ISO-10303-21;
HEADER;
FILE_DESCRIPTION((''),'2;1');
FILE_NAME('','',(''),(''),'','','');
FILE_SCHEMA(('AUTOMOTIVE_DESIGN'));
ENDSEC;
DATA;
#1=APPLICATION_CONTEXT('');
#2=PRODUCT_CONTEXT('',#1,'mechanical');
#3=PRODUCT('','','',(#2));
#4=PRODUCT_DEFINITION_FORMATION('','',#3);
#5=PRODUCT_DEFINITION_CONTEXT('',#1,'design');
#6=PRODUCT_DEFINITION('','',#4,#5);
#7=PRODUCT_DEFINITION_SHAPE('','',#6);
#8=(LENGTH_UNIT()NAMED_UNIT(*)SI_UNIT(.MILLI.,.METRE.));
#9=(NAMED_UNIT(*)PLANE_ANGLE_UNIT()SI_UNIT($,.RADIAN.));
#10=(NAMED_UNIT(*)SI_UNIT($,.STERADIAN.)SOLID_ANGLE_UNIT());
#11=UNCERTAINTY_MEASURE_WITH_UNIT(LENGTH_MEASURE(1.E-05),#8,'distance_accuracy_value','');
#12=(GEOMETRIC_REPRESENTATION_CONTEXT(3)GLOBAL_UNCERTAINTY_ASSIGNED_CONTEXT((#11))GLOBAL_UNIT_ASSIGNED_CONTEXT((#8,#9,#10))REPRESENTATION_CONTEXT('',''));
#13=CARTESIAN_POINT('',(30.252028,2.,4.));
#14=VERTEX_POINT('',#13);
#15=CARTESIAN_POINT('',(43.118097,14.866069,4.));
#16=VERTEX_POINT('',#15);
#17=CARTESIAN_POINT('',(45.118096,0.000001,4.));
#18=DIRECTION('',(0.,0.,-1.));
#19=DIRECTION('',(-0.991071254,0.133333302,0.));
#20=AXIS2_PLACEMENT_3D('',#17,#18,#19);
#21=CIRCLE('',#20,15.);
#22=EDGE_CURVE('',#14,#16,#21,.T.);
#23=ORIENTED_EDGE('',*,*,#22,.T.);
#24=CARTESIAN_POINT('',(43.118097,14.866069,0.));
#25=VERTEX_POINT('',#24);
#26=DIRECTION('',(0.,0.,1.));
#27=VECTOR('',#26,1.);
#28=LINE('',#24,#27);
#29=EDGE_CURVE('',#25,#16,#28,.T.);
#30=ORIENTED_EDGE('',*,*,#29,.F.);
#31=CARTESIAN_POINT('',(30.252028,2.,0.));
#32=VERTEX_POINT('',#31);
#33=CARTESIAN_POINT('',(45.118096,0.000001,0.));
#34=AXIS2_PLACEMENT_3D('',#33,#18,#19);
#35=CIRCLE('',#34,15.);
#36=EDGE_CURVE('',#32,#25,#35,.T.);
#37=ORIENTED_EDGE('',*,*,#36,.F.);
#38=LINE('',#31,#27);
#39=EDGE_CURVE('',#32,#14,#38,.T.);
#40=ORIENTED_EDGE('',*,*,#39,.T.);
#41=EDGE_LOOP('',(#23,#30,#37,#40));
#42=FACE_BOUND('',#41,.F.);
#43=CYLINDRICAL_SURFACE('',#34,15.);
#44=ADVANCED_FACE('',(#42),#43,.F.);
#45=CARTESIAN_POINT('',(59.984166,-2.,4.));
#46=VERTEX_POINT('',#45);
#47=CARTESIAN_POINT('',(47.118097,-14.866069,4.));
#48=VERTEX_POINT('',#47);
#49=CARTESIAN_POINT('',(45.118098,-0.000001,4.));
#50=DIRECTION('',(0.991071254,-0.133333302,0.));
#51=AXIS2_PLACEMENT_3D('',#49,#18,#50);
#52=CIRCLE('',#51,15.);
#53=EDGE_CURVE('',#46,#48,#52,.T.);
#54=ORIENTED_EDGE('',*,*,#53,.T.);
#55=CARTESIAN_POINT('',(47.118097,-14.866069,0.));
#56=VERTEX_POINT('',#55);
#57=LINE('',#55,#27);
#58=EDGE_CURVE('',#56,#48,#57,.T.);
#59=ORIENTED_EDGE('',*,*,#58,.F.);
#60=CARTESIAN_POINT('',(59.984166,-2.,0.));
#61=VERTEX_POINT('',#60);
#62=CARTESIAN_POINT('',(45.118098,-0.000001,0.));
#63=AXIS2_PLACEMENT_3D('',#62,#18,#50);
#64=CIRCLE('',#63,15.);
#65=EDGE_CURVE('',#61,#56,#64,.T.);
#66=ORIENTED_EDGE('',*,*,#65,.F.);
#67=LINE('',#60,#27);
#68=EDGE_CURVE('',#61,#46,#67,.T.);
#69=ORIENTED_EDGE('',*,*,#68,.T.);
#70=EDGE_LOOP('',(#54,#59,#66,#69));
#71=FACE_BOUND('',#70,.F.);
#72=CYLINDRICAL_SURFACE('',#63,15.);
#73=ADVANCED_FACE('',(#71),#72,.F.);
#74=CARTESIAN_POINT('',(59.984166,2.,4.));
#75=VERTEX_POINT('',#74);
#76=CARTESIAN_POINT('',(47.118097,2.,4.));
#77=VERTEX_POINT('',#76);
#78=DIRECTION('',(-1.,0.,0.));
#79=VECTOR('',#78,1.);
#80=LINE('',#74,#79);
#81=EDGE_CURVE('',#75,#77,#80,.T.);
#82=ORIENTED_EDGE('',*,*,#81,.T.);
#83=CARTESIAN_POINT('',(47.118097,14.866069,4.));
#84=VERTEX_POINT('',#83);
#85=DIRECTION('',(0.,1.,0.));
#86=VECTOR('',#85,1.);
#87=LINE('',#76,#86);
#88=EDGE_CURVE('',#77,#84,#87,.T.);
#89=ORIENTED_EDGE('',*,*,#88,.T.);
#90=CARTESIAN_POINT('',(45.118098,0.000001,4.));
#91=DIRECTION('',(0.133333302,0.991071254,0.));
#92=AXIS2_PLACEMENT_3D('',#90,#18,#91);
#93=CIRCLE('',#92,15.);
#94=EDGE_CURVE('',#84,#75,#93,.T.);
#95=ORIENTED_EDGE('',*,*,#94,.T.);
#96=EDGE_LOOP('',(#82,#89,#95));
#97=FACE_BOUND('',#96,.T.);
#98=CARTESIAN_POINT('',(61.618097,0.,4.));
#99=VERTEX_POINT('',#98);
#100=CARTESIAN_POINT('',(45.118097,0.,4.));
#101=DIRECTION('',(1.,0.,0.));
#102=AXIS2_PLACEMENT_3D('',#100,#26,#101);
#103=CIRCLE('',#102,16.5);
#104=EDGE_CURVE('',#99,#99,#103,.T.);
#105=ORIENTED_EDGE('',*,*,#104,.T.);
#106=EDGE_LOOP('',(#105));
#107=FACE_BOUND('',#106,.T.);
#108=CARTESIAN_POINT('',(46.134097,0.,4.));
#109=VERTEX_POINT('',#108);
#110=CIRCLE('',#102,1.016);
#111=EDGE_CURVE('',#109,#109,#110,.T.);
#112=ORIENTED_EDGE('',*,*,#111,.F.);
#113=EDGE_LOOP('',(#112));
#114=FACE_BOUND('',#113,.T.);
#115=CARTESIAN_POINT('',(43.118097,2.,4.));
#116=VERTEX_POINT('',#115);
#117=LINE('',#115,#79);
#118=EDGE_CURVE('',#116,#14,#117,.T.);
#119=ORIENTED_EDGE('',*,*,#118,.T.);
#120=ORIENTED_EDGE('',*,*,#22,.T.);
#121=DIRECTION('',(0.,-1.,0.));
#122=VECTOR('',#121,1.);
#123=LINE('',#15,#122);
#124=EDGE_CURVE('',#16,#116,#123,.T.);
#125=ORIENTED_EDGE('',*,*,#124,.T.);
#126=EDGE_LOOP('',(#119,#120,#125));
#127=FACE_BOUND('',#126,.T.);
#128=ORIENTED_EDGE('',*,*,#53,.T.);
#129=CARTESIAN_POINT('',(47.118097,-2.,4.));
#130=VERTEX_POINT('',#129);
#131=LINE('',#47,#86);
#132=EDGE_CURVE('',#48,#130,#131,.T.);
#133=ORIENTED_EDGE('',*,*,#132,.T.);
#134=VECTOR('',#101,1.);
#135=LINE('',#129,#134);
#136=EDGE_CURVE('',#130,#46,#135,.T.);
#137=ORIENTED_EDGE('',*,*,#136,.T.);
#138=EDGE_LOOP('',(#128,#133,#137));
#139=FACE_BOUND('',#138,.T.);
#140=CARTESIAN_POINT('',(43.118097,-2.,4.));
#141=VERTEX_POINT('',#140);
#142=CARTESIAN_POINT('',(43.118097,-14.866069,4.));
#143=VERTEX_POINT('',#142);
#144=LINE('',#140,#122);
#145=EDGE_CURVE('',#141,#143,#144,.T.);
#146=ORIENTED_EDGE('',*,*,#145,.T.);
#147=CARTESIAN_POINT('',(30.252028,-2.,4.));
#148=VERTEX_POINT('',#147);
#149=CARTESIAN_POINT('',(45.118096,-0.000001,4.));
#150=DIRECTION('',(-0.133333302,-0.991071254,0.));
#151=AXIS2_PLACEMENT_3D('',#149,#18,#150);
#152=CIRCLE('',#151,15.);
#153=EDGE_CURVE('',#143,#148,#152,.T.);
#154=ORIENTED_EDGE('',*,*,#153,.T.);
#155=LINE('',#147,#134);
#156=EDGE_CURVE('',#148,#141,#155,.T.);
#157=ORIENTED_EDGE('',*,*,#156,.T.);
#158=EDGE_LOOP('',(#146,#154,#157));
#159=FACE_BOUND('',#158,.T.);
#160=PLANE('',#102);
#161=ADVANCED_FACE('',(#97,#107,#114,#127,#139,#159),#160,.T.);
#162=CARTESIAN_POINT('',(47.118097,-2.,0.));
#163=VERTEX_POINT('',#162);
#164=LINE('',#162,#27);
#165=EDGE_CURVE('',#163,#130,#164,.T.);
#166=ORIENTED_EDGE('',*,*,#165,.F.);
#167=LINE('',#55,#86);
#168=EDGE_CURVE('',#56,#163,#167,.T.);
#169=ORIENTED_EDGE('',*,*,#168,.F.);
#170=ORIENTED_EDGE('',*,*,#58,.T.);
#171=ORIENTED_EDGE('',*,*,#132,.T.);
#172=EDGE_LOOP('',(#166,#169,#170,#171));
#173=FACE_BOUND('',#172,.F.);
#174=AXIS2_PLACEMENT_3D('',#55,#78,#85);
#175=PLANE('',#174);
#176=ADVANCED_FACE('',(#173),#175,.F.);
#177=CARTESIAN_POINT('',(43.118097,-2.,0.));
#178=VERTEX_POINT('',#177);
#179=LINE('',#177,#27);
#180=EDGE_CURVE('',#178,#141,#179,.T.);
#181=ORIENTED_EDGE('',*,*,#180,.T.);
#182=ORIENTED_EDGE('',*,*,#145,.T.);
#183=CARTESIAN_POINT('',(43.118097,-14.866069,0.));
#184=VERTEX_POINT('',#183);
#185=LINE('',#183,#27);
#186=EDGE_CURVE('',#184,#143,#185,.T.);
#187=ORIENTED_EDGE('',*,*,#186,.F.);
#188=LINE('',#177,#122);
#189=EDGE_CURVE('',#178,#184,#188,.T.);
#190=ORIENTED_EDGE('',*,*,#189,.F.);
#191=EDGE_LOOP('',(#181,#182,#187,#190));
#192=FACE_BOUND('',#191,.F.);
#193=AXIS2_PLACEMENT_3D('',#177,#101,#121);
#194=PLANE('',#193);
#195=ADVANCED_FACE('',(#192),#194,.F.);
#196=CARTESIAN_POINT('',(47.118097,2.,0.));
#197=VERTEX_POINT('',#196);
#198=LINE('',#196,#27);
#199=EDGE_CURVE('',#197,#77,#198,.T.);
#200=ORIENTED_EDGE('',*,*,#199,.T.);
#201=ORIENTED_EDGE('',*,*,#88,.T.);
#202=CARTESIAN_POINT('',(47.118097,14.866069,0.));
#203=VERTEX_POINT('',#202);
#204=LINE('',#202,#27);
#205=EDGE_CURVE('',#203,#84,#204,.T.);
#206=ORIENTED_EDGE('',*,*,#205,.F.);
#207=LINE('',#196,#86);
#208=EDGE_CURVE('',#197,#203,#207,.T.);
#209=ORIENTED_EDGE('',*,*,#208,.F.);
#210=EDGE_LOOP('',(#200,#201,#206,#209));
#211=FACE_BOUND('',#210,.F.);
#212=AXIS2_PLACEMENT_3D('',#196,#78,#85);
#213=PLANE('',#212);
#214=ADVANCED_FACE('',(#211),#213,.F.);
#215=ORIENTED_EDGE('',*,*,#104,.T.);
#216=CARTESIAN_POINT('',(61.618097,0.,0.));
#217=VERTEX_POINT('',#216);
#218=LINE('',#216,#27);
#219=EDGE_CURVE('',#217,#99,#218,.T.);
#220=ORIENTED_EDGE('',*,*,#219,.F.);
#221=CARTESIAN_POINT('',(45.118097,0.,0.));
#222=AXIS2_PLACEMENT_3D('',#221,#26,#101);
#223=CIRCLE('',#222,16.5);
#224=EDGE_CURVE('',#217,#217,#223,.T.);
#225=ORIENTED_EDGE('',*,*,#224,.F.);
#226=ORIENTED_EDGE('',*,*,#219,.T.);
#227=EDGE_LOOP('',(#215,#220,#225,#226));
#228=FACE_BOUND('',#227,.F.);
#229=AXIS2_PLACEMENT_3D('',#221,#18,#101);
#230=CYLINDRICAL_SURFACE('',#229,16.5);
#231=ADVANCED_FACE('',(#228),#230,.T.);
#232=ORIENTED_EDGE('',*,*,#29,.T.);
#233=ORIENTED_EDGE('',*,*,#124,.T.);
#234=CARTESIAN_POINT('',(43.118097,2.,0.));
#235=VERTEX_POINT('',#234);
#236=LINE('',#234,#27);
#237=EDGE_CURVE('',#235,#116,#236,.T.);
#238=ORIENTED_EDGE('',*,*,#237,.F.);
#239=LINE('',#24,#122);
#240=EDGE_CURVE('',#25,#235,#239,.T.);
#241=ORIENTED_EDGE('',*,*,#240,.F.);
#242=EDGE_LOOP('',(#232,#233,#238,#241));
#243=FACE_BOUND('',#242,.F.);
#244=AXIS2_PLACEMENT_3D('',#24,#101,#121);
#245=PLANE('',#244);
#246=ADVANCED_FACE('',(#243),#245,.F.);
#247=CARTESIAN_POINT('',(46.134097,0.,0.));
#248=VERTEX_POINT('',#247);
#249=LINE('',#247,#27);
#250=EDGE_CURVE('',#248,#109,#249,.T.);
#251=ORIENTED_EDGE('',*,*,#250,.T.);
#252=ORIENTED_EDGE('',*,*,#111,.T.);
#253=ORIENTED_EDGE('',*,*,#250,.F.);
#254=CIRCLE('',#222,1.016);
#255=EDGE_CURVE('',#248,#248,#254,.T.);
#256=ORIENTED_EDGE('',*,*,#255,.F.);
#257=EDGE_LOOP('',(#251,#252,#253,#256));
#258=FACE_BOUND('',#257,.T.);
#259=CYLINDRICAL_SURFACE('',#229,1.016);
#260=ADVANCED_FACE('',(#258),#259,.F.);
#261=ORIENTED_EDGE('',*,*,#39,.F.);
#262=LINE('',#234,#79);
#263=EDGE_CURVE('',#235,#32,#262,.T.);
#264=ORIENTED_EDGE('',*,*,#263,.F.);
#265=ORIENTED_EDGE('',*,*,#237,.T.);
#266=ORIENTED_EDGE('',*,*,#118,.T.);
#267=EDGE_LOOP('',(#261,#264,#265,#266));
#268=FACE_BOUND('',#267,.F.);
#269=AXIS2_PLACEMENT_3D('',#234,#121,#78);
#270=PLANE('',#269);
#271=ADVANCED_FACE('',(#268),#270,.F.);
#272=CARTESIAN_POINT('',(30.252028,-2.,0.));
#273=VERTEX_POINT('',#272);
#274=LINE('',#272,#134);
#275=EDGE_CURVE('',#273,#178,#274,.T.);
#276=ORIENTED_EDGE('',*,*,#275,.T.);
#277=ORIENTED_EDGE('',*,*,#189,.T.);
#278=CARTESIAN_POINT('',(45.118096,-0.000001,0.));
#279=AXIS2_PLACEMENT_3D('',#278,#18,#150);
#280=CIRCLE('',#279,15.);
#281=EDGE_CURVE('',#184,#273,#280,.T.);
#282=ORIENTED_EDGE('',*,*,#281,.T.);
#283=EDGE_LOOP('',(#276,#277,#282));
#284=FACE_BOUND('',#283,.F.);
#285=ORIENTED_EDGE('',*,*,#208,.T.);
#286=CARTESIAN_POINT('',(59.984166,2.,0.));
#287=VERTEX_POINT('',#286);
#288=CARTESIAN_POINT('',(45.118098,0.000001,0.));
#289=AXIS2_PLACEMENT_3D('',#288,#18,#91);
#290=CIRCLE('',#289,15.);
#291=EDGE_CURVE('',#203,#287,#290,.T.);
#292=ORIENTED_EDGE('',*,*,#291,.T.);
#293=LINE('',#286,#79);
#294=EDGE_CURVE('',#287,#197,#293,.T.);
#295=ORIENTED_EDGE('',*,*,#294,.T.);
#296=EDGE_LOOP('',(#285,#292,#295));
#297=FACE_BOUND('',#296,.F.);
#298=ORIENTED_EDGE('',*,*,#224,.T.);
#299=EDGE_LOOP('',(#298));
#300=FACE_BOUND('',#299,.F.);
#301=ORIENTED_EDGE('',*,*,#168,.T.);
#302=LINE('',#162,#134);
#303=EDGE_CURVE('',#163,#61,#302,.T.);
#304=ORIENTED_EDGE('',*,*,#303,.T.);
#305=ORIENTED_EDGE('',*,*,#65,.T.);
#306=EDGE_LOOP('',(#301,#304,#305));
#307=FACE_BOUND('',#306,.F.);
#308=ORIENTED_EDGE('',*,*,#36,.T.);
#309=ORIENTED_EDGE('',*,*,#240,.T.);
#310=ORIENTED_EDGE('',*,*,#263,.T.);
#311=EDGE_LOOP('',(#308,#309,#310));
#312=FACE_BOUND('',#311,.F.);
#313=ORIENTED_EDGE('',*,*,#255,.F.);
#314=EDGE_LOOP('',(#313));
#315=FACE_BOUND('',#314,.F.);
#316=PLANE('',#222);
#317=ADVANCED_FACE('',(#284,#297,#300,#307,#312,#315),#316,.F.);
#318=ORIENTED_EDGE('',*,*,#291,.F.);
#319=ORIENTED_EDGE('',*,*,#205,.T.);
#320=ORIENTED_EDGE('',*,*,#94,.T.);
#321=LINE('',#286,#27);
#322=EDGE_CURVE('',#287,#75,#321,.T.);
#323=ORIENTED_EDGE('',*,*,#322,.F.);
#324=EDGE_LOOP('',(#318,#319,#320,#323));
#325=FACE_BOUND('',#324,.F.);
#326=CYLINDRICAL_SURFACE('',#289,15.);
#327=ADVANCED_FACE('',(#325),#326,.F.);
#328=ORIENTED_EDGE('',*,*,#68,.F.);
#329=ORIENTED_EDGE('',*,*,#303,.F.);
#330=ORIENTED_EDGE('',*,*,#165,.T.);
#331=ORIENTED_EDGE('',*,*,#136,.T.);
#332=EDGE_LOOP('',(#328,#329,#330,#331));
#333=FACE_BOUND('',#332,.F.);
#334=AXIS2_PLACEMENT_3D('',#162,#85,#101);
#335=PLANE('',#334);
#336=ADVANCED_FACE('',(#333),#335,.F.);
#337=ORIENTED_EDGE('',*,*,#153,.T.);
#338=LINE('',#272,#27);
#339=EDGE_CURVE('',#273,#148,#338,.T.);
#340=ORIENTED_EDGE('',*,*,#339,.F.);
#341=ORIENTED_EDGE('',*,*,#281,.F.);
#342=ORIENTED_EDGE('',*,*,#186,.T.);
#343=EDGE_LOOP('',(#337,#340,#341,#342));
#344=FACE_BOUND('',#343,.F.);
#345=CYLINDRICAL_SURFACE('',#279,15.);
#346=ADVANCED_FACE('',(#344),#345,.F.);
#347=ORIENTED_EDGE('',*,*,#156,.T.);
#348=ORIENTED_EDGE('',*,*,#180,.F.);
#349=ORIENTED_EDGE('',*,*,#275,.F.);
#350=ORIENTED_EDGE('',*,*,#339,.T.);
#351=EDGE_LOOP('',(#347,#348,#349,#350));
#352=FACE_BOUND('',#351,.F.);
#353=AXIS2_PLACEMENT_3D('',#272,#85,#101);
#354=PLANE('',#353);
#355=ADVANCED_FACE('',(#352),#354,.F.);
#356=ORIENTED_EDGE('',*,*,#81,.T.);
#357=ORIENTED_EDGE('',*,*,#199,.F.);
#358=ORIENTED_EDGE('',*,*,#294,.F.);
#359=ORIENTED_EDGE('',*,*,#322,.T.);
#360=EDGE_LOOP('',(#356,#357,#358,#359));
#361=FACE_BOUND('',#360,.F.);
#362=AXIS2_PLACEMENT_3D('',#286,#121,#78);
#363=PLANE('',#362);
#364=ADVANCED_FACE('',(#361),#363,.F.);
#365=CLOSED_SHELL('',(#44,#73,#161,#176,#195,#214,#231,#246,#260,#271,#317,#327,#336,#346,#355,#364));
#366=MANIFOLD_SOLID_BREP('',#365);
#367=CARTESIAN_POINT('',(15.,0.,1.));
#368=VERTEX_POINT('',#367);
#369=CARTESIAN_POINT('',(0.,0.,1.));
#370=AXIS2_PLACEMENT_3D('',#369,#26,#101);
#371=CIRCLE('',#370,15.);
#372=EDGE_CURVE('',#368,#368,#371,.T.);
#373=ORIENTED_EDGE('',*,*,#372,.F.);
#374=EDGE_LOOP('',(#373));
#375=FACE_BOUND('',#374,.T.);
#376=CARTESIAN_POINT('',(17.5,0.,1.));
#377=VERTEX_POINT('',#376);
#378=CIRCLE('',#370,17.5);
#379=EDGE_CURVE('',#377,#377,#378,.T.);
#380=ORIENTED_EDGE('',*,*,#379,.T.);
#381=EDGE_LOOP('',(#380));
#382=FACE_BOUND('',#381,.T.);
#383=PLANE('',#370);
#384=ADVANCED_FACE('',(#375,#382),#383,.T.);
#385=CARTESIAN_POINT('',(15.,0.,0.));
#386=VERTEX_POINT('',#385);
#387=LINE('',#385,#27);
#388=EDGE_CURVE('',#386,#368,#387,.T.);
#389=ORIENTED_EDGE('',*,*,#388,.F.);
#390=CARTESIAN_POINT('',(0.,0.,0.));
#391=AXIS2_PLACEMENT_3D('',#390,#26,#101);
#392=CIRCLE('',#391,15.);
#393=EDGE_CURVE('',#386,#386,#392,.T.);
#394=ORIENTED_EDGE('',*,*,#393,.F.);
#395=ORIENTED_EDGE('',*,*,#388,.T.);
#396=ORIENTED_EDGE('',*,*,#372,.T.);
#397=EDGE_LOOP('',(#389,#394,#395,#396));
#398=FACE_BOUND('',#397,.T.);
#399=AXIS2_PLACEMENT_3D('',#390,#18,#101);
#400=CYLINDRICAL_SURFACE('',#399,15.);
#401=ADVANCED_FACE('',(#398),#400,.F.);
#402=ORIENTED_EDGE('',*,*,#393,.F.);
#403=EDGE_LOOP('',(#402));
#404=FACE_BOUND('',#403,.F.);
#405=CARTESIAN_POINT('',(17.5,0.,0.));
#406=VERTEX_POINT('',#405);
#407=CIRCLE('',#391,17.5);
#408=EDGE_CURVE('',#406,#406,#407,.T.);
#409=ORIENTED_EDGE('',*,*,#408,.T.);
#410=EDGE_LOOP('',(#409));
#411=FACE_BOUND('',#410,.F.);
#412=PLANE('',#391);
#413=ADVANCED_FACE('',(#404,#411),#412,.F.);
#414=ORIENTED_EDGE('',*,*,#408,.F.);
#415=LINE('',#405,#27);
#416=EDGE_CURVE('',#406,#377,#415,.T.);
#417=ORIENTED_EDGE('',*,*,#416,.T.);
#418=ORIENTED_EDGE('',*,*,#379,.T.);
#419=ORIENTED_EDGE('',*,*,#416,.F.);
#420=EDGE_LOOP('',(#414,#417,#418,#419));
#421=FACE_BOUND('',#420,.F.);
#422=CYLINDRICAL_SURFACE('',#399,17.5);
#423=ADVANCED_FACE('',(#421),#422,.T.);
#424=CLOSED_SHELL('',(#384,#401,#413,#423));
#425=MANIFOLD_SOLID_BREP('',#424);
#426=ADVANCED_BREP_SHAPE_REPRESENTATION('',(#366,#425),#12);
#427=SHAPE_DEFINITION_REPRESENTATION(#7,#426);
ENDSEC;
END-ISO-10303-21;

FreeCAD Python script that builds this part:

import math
import FreeCAD as App
import Part
import Sketcher

V = App.Vector
Q = App.Units.Quantity

doc = App.newDocument("Part")
body = doc.addObject("PartDesign::Body", "Body")

sketch1 = body.newObject("Sketcher::SketchObject", "Sketch")
sketch1.AttachmentSupport = (doc.getObject("XY_Plane"), [""])
sketch1.MapMode = "FlatFace"
sketch1.addGeometry(Part.Circle(V(0, 0, 0), V(0, 0, 1), 17.5), False)
sketch1.addGeometry(Part.Circle(V(0, 0, 0), V(0, 0, 1), 15), False)
sketch1.addConstraint(Sketcher.Constraint("Coincident", 0, 3, -1, 1))
sketch1.addConstraint(Sketcher.Constraint("Coincident", 1, 3, -1, 1))
sketch1.addConstraint(Sketcher.Constraint("Diameter", 0, Q("35 mm")))
sketch1.addConstraint(Sketcher.Constraint("Diameter", 1, Q("30 mm")))
pad1 = body.newObject("PartDesign::Pad", "Pad")
pad1.Profile = sketch1
pad1.Length = 1
body2 = doc.addObject("PartDesign::Body", "Body001")

sketch2 = body2.newObject("Sketcher::SketchObject", "Sketch001")
sketch2.AttachmentSupport = (doc.getObject("XY_Plane001"), [""])
sketch2.MapMode = "FlatFace"
sketch2.addGeometry(Part.Circle(V(45.118097, 0, 0), V(0, 0, 1), 16.5), False)
sketch2.addGeometry(Part.LineSegment(V(43.118097, -2, 0), V(43.118097, -14.866069, 0)), False)
sketch2.addGeometry(Part.ArcOfCircle(Part.Circle(V(45.118096, -0.000001, 0), V(0, 0, 1), 15), math.radians(-172.337746), math.radians(-97.662254)), False)
sketch2.addGeometry(Part.LineSegment(V(30.252028, -2, 0), V(43.118097, -2, 0)), False)
sketch2.addGeometry(Part.LineSegment(V(47.118097, -2, 0), V(59.984166, -2, 0)), False)
sketch2.addGeometry(Part.ArcOfCircle(Part.Circle(V(45.118098, -0.000001, 0), V(0, 0, 1), 15), math.radians(-82.337746), math.radians(-7.662254)), False)
sketch2.addGeometry(Part.LineSegment(V(47.118097, -14.866069, 0), V(47.118097, -2, 0)), False)
sketch2.addGeometry(Part.Circle(V(45.118097, 0, 0), V(0, 0, 1), 1.016), False)
sketch2.addGeometry(Part.LineSegment(V(43.118097, 2, 0), V(30.252028, 2, 0)), False)
sketch2.addGeometry(Part.ArcOfCircle(Part.Circle(V(45.118096, 0.000001, 0), V(0, 0, 1), 15), math.radians(97.662254), math.radians(172.337746)), False)
sketch2.addGeometry(Part.LineSegment(V(43.118097, 14.866069, 0), V(43.118097, 2, 0)), False)
sketch2.addGeometry(Part.LineSegment(V(59.984166, 2, 0), V(47.118097, 2, 0)), False)
sketch2.addGeometry(Part.LineSegment(V(47.118097, 2, 0), V(47.118097, 14.866069, 0)), False)
sketch2.addGeometry(Part.ArcOfCircle(Part.Circle(V(45.118098, 0.000001, 0), V(0, 0, 1), 15), math.radians(7.662254), math.radians(82.337746)), False)
sketch2.addConstraint(Sketcher.Constraint("Coincident", 1, 2, 2, 2))
sketch2.addConstraint(Sketcher.Constraint("Coincident", 2, 1, 3, 1))
sketch2.addConstraint(Sketcher.Constraint("Coincident", 3, 2, 1, 1))
sketch2.addConstraint(Sketcher.Constraint("Coincident", 4, 2, 5, 2))
sketch2.addConstraint(Sketcher.Constraint("Coincident", 5, 1, 6, 1))
sketch2.addConstraint(Sketcher.Constraint("Coincident", 6, 2, 4, 1))
sketch2.addConstraint(Sketcher.Constraint("Coincident", 8, 2, 9, 2))
sketch2.addConstraint(Sketcher.Constraint("Coincident", 9, 1, 10, 1))
sketch2.addConstraint(Sketcher.Constraint("Coincident", 10, 2, 8, 1))
sketch2.addConstraint(Sketcher.Constraint("Coincident", 11, 2, 12, 1))
sketch2.addConstraint(Sketcher.Constraint("Coincident", 12, 2, 13, 2))
sketch2.addConstraint(Sketcher.Constraint("Coincident", 13, 1, 11, 1))
sketch2.addConstraint(Sketcher.Constraint("Vertical", 1))
sketch2.addConstraint(Sketcher.Constraint("Horizontal", 3))
sketch2.addConstraint(Sketcher.Constraint("Horizontal", 4))
sketch2.addConstraint(Sketcher.Constraint("Vertical", 6))
sketch2.addConstraint(Sketcher.Constraint("Horizontal", 8))
sketch2.addConstraint(Sketcher.Constraint("Vertical", 10))
sketch2.addConstraint(Sketcher.Constraint("Horizontal", 11))
sketch2.addConstraint(Sketcher.Constraint("Vertical", 12))
sketch2.addConstraint(Sketcher.Constraint("Coincident", 2, 3, 0, 3))
sketch2.addConstraint(Sketcher.Constraint("Coincident", 5, 3, 0, 3))
sketch2.addConstraint(Sketcher.Constraint("Coincident", 7, 3, 0, 3))
sketch2.addConstraint(Sketcher.Constraint("Coincident", 9, 3, 0, 3))
sketch2.addConstraint(Sketcher.Constraint("Coincident", 13, 3, 0, 3))
sketch2.addConstraint(Sketcher.Constraint("Equal", 2, 5))
sketch2.addConstraint(Sketcher.Constraint("Equal", 5, 9))
sketch2.addConstraint(Sketcher.Constraint("Equal", 9, 13))
sketch2.addConstraint(Sketcher.Constraint("Symmetric", 2, 1, 8, 2, -1))
sketch2.addConstraint(Sketcher.Constraint("Symmetric", 6, 2, 11, 2, -1))
sketch2.addConstraint(Sketcher.Constraint("Horizontal", 3, 2, 4, 2))
sketch2.addConstraint(Sketcher.Constraint("Horizontal", 1, 2, 5, 1))
sketch2.addConstraint(Sketcher.Constraint("Horizontal", 9, 1, 12, 2))
sketch2.addConstraint(Sketcher.Constraint("Equal", 11, 1))
sketch2.addConstraint(Sketcher.Constraint("Diameter", 0, Q("33 mm")))
sketch2.addConstraint(Sketcher.Constraint("Radius", 2, Q("15 mm")))
sketch2.addConstraint(Sketcher.Constraint("Diameter", 7, Q("2.032 mm")))
sketch2.addConstraint(Sketcher.Constraint("DistanceY", 2, 1, -1, 1, Q("2 mm")))
sketch2.addConstraint(Sketcher.Constraint("DistanceX", -1, 1, 0, 3, Q("45.118097 mm")))
pad2 = body2.newObject("PartDesign::Pad", "Pad001")
pad2.Profile = sketch2
pad2.Length = 4

doc.recompute()
